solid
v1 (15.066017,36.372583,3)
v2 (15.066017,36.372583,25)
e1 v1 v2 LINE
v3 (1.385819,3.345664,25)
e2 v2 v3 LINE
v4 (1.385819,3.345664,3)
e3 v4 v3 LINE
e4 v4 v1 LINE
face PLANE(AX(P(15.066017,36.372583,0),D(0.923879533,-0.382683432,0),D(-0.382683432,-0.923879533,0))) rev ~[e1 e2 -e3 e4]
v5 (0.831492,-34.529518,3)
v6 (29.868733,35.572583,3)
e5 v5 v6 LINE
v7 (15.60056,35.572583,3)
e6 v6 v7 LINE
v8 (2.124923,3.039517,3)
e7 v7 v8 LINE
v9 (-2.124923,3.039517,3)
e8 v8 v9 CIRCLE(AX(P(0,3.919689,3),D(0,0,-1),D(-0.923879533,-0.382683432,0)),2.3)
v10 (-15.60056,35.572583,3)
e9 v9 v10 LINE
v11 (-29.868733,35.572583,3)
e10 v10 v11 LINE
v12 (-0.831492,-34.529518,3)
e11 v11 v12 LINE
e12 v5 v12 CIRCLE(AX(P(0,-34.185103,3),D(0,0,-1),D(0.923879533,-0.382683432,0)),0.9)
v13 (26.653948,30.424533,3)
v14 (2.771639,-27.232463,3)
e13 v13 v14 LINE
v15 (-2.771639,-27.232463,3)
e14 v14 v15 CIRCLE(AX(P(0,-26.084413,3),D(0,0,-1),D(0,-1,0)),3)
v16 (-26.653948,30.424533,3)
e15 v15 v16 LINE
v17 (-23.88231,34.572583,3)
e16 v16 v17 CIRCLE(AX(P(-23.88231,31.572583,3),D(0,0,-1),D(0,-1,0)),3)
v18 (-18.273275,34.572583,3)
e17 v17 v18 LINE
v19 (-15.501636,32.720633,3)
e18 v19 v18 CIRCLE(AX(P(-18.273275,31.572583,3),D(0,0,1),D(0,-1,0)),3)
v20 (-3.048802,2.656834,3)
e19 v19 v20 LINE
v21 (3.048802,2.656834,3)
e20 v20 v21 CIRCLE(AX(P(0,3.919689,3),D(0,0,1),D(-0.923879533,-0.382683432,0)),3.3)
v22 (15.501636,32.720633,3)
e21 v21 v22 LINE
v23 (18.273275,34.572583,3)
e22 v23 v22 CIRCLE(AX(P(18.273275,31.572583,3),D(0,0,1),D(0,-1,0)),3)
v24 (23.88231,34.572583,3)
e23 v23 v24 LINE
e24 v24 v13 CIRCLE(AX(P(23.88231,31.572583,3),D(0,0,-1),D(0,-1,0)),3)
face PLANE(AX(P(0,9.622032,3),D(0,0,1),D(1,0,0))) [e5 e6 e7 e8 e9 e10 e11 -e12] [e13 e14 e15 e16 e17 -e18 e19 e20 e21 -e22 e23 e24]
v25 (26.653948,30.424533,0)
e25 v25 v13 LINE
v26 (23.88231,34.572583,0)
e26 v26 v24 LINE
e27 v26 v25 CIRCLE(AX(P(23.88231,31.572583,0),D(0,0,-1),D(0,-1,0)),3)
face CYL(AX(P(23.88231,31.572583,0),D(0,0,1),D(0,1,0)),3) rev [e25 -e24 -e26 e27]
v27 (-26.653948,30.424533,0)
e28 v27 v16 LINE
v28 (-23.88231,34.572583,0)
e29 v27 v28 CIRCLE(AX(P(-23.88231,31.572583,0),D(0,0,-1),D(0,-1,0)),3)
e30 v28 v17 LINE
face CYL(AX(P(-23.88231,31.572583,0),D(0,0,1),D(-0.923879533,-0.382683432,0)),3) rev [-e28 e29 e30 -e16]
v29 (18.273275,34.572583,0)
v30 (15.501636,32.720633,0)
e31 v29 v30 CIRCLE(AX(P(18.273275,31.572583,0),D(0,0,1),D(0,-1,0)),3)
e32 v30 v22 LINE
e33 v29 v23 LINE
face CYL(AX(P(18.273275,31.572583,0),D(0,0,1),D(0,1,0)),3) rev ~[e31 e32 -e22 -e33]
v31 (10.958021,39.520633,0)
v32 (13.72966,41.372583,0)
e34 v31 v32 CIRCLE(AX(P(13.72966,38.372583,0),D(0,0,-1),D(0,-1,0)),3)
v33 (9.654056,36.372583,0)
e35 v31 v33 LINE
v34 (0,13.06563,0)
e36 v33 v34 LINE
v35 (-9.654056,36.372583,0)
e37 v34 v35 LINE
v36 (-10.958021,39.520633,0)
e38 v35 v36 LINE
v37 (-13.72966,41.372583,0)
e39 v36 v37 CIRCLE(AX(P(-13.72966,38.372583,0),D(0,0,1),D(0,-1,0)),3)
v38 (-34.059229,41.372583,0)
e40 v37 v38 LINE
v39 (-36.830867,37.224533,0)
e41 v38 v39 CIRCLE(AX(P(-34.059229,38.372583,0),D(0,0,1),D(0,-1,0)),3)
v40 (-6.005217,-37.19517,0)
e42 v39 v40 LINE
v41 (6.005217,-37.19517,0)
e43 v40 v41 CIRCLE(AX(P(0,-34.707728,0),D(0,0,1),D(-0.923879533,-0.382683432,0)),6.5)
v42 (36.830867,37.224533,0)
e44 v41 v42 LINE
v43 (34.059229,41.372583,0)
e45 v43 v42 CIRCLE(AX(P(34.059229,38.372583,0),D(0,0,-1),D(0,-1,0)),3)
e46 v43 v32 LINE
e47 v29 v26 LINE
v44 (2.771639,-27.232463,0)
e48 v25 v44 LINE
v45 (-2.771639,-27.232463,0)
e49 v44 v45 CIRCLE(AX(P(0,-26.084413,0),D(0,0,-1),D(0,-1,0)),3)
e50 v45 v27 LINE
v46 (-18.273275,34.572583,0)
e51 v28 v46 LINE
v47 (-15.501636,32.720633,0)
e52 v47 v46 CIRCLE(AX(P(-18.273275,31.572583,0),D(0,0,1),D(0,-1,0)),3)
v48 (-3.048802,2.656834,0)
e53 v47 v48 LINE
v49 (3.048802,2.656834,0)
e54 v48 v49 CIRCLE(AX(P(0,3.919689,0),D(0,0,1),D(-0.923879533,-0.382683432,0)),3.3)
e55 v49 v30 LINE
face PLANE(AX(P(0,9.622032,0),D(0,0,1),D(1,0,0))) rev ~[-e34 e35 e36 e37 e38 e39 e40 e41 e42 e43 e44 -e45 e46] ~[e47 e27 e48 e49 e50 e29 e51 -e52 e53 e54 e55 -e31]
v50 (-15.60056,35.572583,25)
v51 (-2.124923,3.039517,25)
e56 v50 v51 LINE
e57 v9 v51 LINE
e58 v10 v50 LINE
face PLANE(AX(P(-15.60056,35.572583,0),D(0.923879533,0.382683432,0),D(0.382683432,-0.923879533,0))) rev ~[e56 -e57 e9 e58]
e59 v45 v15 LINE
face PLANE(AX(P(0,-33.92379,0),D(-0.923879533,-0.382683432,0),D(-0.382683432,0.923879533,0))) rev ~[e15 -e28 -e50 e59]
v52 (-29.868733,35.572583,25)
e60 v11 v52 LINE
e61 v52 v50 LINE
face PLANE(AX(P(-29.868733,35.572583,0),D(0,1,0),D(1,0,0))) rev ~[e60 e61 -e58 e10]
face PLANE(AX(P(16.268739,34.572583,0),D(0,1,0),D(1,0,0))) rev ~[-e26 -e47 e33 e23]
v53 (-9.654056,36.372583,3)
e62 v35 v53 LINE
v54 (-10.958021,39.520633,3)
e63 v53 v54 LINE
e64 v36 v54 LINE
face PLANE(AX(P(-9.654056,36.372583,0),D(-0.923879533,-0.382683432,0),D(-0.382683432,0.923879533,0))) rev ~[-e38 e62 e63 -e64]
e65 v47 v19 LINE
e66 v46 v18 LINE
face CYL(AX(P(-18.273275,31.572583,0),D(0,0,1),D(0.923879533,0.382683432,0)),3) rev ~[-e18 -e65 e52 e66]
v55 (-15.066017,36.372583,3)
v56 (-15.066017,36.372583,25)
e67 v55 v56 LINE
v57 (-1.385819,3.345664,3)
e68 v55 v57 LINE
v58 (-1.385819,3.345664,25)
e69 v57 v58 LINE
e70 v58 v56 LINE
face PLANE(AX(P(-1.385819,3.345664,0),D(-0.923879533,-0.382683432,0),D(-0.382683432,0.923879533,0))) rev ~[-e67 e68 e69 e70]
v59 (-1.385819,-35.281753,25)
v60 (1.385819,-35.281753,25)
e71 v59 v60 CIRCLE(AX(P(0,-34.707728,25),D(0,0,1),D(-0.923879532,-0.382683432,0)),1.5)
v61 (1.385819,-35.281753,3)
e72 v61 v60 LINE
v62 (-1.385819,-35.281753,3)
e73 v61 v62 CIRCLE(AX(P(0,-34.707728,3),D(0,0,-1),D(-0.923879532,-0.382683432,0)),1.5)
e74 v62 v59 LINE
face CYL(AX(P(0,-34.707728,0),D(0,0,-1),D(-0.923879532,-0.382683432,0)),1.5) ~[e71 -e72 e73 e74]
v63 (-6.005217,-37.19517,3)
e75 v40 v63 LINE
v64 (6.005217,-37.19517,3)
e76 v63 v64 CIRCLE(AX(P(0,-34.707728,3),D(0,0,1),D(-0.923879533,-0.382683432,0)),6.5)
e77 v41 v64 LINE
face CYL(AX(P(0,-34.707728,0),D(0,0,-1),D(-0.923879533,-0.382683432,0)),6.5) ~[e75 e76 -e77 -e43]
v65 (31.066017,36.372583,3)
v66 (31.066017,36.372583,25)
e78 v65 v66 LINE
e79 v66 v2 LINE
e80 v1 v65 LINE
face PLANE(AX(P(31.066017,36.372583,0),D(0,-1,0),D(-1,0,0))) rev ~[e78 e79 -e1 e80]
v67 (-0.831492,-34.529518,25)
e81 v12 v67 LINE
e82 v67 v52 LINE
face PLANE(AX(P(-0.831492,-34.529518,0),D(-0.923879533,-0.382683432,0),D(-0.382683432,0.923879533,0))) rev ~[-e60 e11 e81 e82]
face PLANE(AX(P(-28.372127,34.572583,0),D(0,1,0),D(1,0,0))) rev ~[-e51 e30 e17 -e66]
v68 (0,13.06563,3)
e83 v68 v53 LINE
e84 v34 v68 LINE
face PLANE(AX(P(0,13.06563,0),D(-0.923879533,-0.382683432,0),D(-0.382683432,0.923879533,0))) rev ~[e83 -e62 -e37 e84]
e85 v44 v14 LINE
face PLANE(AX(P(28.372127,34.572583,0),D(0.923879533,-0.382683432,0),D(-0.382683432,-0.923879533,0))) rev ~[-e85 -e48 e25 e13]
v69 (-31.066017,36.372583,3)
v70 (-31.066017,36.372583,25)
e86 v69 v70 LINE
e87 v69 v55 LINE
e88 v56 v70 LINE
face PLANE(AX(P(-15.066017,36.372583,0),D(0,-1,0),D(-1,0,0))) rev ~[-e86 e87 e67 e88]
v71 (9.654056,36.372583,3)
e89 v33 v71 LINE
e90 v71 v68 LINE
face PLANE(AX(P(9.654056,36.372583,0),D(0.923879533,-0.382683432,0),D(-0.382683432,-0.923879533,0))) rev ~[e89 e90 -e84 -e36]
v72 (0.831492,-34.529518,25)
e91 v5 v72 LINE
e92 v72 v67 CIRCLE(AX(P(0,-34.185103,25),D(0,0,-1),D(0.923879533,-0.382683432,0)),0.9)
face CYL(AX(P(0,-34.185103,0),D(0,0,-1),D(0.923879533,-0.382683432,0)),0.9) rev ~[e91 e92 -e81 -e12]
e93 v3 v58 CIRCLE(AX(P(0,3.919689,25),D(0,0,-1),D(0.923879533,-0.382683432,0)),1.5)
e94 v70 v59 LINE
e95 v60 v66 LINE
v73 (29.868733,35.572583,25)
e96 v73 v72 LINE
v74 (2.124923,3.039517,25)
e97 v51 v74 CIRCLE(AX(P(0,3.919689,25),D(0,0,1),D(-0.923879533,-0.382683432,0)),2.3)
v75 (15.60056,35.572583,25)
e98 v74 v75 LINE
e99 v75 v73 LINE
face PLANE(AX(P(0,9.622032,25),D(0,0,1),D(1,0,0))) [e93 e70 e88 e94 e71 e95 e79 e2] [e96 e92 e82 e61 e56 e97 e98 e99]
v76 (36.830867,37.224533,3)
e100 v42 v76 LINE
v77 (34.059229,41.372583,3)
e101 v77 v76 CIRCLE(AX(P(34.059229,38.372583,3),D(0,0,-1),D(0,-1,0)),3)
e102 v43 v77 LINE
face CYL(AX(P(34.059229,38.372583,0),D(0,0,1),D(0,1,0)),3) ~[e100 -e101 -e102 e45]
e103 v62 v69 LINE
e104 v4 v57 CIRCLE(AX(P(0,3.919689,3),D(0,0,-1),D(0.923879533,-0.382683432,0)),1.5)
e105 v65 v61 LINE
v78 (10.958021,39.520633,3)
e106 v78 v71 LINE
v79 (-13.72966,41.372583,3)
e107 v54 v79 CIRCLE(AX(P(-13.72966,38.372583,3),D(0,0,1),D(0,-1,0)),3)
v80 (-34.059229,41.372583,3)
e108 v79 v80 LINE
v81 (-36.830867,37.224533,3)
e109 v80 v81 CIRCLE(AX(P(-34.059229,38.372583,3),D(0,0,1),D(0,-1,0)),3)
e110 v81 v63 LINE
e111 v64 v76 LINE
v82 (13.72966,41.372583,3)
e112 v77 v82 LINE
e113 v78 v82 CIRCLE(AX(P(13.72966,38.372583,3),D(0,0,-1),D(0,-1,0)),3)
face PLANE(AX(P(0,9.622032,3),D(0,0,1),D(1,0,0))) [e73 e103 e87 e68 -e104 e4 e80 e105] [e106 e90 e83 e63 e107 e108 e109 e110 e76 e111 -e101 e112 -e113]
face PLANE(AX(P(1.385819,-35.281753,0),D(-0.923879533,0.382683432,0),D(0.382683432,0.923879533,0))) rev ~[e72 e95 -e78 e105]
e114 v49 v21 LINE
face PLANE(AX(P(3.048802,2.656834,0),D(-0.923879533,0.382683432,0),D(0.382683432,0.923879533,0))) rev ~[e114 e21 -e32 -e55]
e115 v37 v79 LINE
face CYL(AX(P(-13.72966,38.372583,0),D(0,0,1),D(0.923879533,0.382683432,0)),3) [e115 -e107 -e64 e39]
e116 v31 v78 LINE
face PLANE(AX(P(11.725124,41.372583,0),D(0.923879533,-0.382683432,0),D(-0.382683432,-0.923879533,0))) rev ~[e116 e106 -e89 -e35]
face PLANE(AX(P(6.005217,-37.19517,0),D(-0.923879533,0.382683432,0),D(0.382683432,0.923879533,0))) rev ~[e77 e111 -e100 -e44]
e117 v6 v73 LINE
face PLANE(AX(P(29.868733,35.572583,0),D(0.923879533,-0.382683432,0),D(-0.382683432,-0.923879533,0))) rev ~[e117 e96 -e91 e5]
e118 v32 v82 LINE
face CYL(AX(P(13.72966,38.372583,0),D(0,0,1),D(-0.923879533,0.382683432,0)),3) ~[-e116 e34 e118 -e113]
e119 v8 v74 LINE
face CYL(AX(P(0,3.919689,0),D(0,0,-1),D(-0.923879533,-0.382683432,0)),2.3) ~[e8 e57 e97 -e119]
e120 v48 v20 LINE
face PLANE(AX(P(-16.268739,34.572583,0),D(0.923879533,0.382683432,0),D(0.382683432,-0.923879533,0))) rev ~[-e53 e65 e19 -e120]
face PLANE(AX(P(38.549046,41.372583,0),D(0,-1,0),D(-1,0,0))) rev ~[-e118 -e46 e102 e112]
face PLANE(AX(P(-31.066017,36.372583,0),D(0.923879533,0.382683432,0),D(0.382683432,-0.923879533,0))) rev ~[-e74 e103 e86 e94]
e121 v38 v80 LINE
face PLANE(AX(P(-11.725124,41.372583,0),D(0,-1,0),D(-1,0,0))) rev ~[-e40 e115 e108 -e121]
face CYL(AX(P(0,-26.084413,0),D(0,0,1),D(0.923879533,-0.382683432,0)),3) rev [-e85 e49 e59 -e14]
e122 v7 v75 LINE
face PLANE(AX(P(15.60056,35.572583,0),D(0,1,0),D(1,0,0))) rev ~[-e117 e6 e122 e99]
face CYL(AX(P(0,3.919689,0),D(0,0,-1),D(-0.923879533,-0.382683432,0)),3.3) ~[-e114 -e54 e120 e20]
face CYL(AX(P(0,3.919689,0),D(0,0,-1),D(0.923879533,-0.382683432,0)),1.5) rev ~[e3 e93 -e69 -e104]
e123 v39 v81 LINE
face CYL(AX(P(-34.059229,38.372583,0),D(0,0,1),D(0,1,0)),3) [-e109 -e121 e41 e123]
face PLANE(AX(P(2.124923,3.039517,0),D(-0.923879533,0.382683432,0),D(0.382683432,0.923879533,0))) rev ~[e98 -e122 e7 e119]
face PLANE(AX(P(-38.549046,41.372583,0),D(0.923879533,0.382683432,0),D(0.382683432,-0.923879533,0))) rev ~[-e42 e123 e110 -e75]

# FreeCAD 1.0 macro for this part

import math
import FreeCAD as App
import Part
import Sketcher
from FreeCAD import Vector
Q = App.Units.Quantity


def edges_at(feature, points):
    """Names of the edges that pass closest to the given points."""
    edges = feature.Shape.Edges
    near = lambda p: min(range(len(edges)), key=lambda i: edges[i].distToShape(Part.Vertex(*p))[0])
    return sorted({f"Edge{near(p) + 1}" for p in points})

doc = App.newDocument("Part")
body = doc.addObject("PartDesign::Body", "Body")

sketch1 = body.newObject("Sketcher::SketchObject", "Sketch")
sketch1.AttachmentSupport = (doc.getObject("XY_Plane"), [""])
sketch1.MapMode = "FlatFace"
sketch1.addGeometry(Part.LineSegment(Vector(-9.7, 36.4, 0), Vector(-11.7, 41.4, 0)), False)
sketch1.addGeometry(Part.LineSegment(Vector(-11.7, 41.4, 0), Vector(-38.5, 41.4, 0)), False)
sketch1.addGeometry(Part.LineSegment(Vector(-38.5, 41.4, 0), Vector(-6, -37.2, 0)), False)
sketch1.addGeometry(Part.ArcOfCircle(Part.Circle(Vector(0, -34.7, 0), Vector(0, 0, 1), 6.5), math.radians(-157), math.radians(-23)), False)
sketch1.addGeometry(Part.LineSegment(Vector(6, -37.2, 0), Vector(38.5, 41.4, 0)), False)
sketch1.addGeometry(Part.LineSegment(Vector(38.5, 41.4, 0), Vector(11.7, 41.4, 0)), False)
sketch1.addGeometry(Part.LineSegment(Vector(11.7, 41.4, 0), Vector(9.7, 36.4, 0)), False)
sketch1.addGeometry(Part.LineSegment(Vector(9.7, 36.4, 0), Vector(0, 13.1, 0)), False)
sketch1.addGeometry(Part.LineSegment(Vector(0, 13.1, 0), Vector(-9.7, 36.4, 0)), False)
sketch1.addGeometry(Part.LineSegment(Vector(16.3, 34.6, 0), Vector(28.4, 34.6, 0)), False)
sketch1.addGeometry(Part.LineSegment(Vector(28.4, 34.6, 0), Vector(0, -33.9, 0)), False)
sketch1.addGeometry(Part.LineSegment(Vector(0, -33.9, 0), Vector(-28.4, 34.6, 0)), False)
sketch1.addGeometry(Part.LineSegment(Vector(-28.4, 34.6, 0), Vector(-16.3, 34.6, 0)), False)
sketch1.addGeometry(Part.LineSegment(Vector(-16.3, 34.6, 0), Vector(-3, 2.7, 0)), False)
sketch1.addGeometry(Part.ArcOfCircle(Part.Circle(Vector(0, 3.9, 0), Vector(0, 0, 1), 3.3), math.radians(-157), math.radians(-23)), False)
sketch1.addGeometry(Part.LineSegment(Vector(3, 2.7, 0), Vector(16.3, 34.6, 0)), False)
sketch1.addConstraint(Sketcher.Constraint("Coincident", 0, 2, 1, 1))
sketch1.addConstraint(Sketcher.Constraint("Coincident", 1, 2, 2, 1))
sketch1.addConstraint(Sketcher.Constraint("Tangent", 2, 2, 3, 1))
sketch1.addConstraint(Sketcher.Constraint("Tangent", 3, 2, 4, 1))
sketch1.addConstraint(Sketcher.Constraint("Coincident", 4, 2, 5, 1))
sketch1.addConstraint(Sketcher.Constraint("Coincident", 5, 2, 6, 1))
sketch1.addConstraint(Sketcher.Constraint("Coincident", 6, 2, 7, 1))
sketch1.addConstraint(Sketcher.Constraint("Coincident", 7, 2, 8, 1))
sketch1.addConstraint(Sketcher.Constraint("Coincident", 8, 2, 0, 1))
sketch1.addConstraint(Sketcher.Constraint("Coincident", 9, 2, 10, 1))
sketch1.addConstraint(Sketcher.Constraint("Coincident", 10, 2, 11, 1))
sketch1.addConstraint(Sketcher.Constraint("Coincident", 11, 2, 12, 1))
sketch1.addConstraint(Sketcher.Constraint("Coincident", 12, 2, 13, 1))
sketch1.addConstraint(Sketcher.Constraint("Tangent", 13, 2, 14, 1))
sketch1.addConstraint(Sketcher.Constraint("Tangent", 14, 2, 15, 1))
sketch1.addConstraint(Sketcher.Constraint("Coincident", 15, 2, 9, 1))
sketch1.addConstraint(Sketcher.Constraint("Horizontal", 1))
sketch1.addConstraint(Sketcher.Constraint("Horizontal", 5))
sketch1.addConstraint(Sketcher.Constraint("Horizontal", 9))
sketch1.addConstraint(Sketcher.Constraint("Horizontal", 12))
sketch1.addConstraint(Sketcher.Constraint("Symmetric", 2, 2, 3, 2, -2))
sketch1.addConstraint(Sketcher.Constraint("Symmetric", 0, 2, 5, 2, -2))
sketch1.addConstraint(Sketcher.Constraint("Symmetric", 6, 2, 8, 2, -2))
sketch1.addConstraint(Sketcher.Constraint("Symmetric", 9, 2, 11, 2, -2))
sketch1.addConstraint(Sketcher.Constraint("Symmetric", 13, 2, 14, 2, -2))
sketch1.addConstraint(Sketcher.Constraint("PointOnObject", 7, 2, -2))
sketch1.addConstraint(Sketcher.Constraint("PointOnObject", 10, 2, -2))
sketch1.addConstraint(Sketcher.Constraint("Parallel", 0, 2))
sketch1.addConstraint(Sketcher.Constraint("Parallel", 6, 7))
sketch1.addConstraint(Sketcher.Constraint("Parallel", 7, 10))
sketch1.addConstraint(Sketcher.Constraint("Parallel", 11, 13))
sketch1.addConstraint(Sketcher.Constraint("Radius", 3, Q("6.5 mm")))
sketch1.addConstraint(Sketcher.Constraint("Radius", 14, Q("3.3 mm")))
sketch1.addConstraint(Sketcher.Constraint("Angle", 0, Q("112.5 deg")))
sketch1.addConstraint(Sketcher.Constraint("DistanceY", 6, 2, 5, 2, Q("5 mm")))
sketch1.addConstraint(Sketcher.Constraint("DistanceY", 9, 2, 4, 2, Q("6.8 mm")))
sketch1.addConstraint(Sketcher.Constraint("DistanceX", 9, 1, 9, 2, Q("12.103388 mm")))
sketch1.addConstraint(Sketcher.Constraint("Distance", 10, Q("74.13994 mm")))
sketch1.addConstraint(Sketcher.Constraint("DistanceX", 1, 2, 1, 1, Q("26.823922 mm")))
sketch1.addConstraint(Sketcher.Constraint("DistanceY", 3, 3, -1, 1, Q("34.707728 mm")))
sketch1.addConstraint(Sketcher.Constraint("DistanceY", -1, 1, 14, 3, Q("3.919689 mm")))
pad1 = body.newObject("PartDesign::Pad", "Pad")
pad1.Profile = sketch1
pad1.Length = 3

sketch2 = body.newObject("Sketcher::SketchObject", "Sketch001")
sketch2.AttachmentSupport = (doc.getObject("XY_Plane"), [""])
sketch2.MapMode = "FlatFace"
sketch2.addGeometry(Part.LineSegment(Vector(-1.4, 3.3, 0), Vector(-15.1, 36.4, 0)), False)
sketch2.addGeometry(Part.LineSegment(Vector(-15.1, 36.4, 0), Vector(-31.1, 36.4, 0)), False)
sketch2.addGeometry(Part.LineSegment(Vector(-31.1, 36.4, 0), Vector(-1.4, -35.3, 0)), False)
sketch2.addGeometry(Part.ArcOfCircle(Part.Circle(Vector(0, -34.7, 0), Vector(0, 0, 1), 1.5), math.radians(-157), math.radians(-23)), False)
sketch2.addGeometry(Part.LineSegment(Vector(1.4, -35.3, 0), Vector(31.1, 36.4, 0)), False)
sketch2.addGeometry(Part.LineSegment(Vector(31.1, 36.4, 0), Vector(15.1, 36.4, 0)), False)
sketch2.addGeometry(Part.LineSegment(Vector(15.1, 36.4, 0), Vector(1.4, 3.3, 0)), False)
sketch2.addGeometry(Part.ArcOfCircle(Part.Circle(Vector(0, 3.9, 0), Vector(0, 0, 1), 1.5), math.radians(-157), math.radians(-23)), False)
sketch2.addGeometry(Part.LineSegment(Vector(29.9, 35.6, 0), Vector(0.8, -34.5, 0)), False)
sketch2.addGeometry(Part.ArcOfCircle(Part.Circle(Vector(0, -34.2, 0), Vector(0, 0, 1), 0.9), math.radians(-158), math.radians(-22)), False)
sketch2.addGeometry(Part.LineSegment(Vector(-0.8, -34.5, 0), Vector(-29.9, 35.6, 0)), False)
sketch2.addGeometry(Part.LineSegment(Vector(-29.9, 35.6, 0), Vector(-15.6, 35.6, 0)), False)
sketch2.addGeometry(Part.LineSegment(Vector(-15.6, 35.6, 0), Vector(-2.1, 3, 0)), False)
sketch2.addGeometry(Part.ArcOfCircle(Part.Circle(Vector(0, 3.9, 0), Vector(0, 0, 1), 2.3), math.radians(-157), math.radians(-23)), False)
sketch2.addGeometry(Part.LineSegment(Vector(2.1, 3, 0), Vector(15.6, 35.6, 0)), False)
sketch2.addGeometry(Part.LineSegment(Vector(15.6, 35.6, 0), Vector(29.9, 35.6, 0)), False)
sketch2.addConstraint(Sketcher.Constraint("Coincident", 0, 2, 1, 1))
sketch2.addConstraint(Sketcher.Constraint("Coincident", 1, 2, 2, 1))
sketch2.addConstraint(Sketcher.Constraint("Tangent", 2, 2, 3, 1))
sketch2.addConstraint(Sketcher.Constraint("Tangent", 3, 2, 4, 1))
sketch2.addConstraint(Sketcher.Constraint("Coincident", 4, 2, 5, 1))
sketch2.addConstraint(Sketcher.Constraint("Coincident", 5, 2, 6, 1))
sketch2.addConstraint(Sketcher.Constraint("Tangent", 6, 2, 7, 2))
sketch2.addConstraint(Sketcher.Constraint("Tangent", 7, 1, 0, 1))
sketch2.addConstraint(Sketcher.Constraint("Tangent", 8, 2, 9, 2))
sketch2.addConstraint(Sketcher.Constraint("Tangent", 9, 1, 10, 1))
sketch2.addConstraint(Sketcher.Constraint("Coincident", 10, 2, 11, 1))
sketch2.addConstraint(Sketcher.Constraint("Coincident", 11, 2, 12, 1))
sketch2.addConstraint(Sketcher.Constraint("Tangent", 12, 2, 13, 1))
sketch2.addConstraint(Sketcher.Constraint("Tangent", 13, 2, 14, 1))
sketch2.addConstraint(Sketcher.Constraint("Coincident", 14, 2, 15, 1))
sketch2.addConstraint(Sketcher.Constraint("Coincident", 15, 2, 8, 1))
sketch2.addConstraint(Sketcher.Constraint("Horizontal", 1))
sketch2.addConstraint(Sketcher.Constraint("Horizontal", 5))
sketch2.addConstraint(Sketcher.Constraint("Horizontal", 11))
sketch2.addConstraint(Sketcher.Constraint("Horizontal", 15))
sketch2.addConstraint(Sketcher.Constraint("Coincident", 13, 3, 7, 3))
sketch2.addConstraint(Sketcher.Constraint("Equal", 3, 7))
sketch2.addConstraint(Sketcher.Constraint("Symmetric", 2, 2, 3, 2, -2))
sketch2.addConstraint(Sketcher.Constraint("Symmetric", 0, 2, 5, 2, -2))
sketch2.addConstraint(Sketcher.Constraint("Symmetric", 8, 2, 9, 1, -2))
sketch2.addConstraint(Sketcher.Constraint("Symmetric", 12, 2, 13, 2, -2))
sketch2.addConstraint(Sketcher.Constraint("Parallel", 0, 2))
sketch2.addConstraint(Sketcher.Constraint("Parallel", 6, 8))
sketch2.addConstraint(Sketcher.Constraint("Parallel", 10, 12))
sketch2.addConstraint(Sketcher.Constraint("Horizontal", 11, 2, 14, 2))
sketch2.addConstraint(Sketcher.Constraint("Radius", 3, Q("1.5 mm")))
sketch2.addConstraint(Sketcher.Constraint("Radius", 9, Q("0.9 mm")))
sketch2.addConstraint(Sketcher.Constraint("Radius", 13, Q("2.3 mm")))
sketch2.addConstraint(Sketcher.Constraint("DistanceX", 1, 2, 1, 1, Q("16 mm")))
sketch2.addConstraint(Sketcher.Constraint("Angle", 0, Q("112.5 deg")))
sketch2.addConstraint(Sketcher.Constraint("DistanceY", 10, 2, 1, 2, Q("0.8 mm")))
sketch2.addConstraint(Sketcher.Constraint("Distance", 0, Q("35.74808 mm")))
sketch2.addConstraint(Sketcher.Constraint("DistanceX", 11, 1, 11, 2, Q("14.268172 mm")))
sketch2.addConstraint(Sketcher.Constraint("DistanceY", 3, 3, -1, 1, Q("34.707728 mm")))
pad2 = body.newObject("PartDesign::Pad", "Pad001")
pad2.Profile = sketch2
pad2.Length = 25
doc.recompute()

fillet = body.newObject("PartDesign::Fillet", "Fillet")
fillet.Base = (pad2, edges_at(pad2, [
    (-38.549, 41.373, 1.5),
    (-11.725, 41.373, 1.5),
    (11.725, 41.373, 1.5),
    (38.549, 41.373, 1.5),
    (-16.269, 34.573, 1.5),
    (-28.372, 34.573, 1.5),
    (16.269, 34.573, 1.5),
    (28.372, 34.573, 1.5),
    (0, -33.924, 1.5),
]))
fillet.Radius = 3

doc.recompute()
